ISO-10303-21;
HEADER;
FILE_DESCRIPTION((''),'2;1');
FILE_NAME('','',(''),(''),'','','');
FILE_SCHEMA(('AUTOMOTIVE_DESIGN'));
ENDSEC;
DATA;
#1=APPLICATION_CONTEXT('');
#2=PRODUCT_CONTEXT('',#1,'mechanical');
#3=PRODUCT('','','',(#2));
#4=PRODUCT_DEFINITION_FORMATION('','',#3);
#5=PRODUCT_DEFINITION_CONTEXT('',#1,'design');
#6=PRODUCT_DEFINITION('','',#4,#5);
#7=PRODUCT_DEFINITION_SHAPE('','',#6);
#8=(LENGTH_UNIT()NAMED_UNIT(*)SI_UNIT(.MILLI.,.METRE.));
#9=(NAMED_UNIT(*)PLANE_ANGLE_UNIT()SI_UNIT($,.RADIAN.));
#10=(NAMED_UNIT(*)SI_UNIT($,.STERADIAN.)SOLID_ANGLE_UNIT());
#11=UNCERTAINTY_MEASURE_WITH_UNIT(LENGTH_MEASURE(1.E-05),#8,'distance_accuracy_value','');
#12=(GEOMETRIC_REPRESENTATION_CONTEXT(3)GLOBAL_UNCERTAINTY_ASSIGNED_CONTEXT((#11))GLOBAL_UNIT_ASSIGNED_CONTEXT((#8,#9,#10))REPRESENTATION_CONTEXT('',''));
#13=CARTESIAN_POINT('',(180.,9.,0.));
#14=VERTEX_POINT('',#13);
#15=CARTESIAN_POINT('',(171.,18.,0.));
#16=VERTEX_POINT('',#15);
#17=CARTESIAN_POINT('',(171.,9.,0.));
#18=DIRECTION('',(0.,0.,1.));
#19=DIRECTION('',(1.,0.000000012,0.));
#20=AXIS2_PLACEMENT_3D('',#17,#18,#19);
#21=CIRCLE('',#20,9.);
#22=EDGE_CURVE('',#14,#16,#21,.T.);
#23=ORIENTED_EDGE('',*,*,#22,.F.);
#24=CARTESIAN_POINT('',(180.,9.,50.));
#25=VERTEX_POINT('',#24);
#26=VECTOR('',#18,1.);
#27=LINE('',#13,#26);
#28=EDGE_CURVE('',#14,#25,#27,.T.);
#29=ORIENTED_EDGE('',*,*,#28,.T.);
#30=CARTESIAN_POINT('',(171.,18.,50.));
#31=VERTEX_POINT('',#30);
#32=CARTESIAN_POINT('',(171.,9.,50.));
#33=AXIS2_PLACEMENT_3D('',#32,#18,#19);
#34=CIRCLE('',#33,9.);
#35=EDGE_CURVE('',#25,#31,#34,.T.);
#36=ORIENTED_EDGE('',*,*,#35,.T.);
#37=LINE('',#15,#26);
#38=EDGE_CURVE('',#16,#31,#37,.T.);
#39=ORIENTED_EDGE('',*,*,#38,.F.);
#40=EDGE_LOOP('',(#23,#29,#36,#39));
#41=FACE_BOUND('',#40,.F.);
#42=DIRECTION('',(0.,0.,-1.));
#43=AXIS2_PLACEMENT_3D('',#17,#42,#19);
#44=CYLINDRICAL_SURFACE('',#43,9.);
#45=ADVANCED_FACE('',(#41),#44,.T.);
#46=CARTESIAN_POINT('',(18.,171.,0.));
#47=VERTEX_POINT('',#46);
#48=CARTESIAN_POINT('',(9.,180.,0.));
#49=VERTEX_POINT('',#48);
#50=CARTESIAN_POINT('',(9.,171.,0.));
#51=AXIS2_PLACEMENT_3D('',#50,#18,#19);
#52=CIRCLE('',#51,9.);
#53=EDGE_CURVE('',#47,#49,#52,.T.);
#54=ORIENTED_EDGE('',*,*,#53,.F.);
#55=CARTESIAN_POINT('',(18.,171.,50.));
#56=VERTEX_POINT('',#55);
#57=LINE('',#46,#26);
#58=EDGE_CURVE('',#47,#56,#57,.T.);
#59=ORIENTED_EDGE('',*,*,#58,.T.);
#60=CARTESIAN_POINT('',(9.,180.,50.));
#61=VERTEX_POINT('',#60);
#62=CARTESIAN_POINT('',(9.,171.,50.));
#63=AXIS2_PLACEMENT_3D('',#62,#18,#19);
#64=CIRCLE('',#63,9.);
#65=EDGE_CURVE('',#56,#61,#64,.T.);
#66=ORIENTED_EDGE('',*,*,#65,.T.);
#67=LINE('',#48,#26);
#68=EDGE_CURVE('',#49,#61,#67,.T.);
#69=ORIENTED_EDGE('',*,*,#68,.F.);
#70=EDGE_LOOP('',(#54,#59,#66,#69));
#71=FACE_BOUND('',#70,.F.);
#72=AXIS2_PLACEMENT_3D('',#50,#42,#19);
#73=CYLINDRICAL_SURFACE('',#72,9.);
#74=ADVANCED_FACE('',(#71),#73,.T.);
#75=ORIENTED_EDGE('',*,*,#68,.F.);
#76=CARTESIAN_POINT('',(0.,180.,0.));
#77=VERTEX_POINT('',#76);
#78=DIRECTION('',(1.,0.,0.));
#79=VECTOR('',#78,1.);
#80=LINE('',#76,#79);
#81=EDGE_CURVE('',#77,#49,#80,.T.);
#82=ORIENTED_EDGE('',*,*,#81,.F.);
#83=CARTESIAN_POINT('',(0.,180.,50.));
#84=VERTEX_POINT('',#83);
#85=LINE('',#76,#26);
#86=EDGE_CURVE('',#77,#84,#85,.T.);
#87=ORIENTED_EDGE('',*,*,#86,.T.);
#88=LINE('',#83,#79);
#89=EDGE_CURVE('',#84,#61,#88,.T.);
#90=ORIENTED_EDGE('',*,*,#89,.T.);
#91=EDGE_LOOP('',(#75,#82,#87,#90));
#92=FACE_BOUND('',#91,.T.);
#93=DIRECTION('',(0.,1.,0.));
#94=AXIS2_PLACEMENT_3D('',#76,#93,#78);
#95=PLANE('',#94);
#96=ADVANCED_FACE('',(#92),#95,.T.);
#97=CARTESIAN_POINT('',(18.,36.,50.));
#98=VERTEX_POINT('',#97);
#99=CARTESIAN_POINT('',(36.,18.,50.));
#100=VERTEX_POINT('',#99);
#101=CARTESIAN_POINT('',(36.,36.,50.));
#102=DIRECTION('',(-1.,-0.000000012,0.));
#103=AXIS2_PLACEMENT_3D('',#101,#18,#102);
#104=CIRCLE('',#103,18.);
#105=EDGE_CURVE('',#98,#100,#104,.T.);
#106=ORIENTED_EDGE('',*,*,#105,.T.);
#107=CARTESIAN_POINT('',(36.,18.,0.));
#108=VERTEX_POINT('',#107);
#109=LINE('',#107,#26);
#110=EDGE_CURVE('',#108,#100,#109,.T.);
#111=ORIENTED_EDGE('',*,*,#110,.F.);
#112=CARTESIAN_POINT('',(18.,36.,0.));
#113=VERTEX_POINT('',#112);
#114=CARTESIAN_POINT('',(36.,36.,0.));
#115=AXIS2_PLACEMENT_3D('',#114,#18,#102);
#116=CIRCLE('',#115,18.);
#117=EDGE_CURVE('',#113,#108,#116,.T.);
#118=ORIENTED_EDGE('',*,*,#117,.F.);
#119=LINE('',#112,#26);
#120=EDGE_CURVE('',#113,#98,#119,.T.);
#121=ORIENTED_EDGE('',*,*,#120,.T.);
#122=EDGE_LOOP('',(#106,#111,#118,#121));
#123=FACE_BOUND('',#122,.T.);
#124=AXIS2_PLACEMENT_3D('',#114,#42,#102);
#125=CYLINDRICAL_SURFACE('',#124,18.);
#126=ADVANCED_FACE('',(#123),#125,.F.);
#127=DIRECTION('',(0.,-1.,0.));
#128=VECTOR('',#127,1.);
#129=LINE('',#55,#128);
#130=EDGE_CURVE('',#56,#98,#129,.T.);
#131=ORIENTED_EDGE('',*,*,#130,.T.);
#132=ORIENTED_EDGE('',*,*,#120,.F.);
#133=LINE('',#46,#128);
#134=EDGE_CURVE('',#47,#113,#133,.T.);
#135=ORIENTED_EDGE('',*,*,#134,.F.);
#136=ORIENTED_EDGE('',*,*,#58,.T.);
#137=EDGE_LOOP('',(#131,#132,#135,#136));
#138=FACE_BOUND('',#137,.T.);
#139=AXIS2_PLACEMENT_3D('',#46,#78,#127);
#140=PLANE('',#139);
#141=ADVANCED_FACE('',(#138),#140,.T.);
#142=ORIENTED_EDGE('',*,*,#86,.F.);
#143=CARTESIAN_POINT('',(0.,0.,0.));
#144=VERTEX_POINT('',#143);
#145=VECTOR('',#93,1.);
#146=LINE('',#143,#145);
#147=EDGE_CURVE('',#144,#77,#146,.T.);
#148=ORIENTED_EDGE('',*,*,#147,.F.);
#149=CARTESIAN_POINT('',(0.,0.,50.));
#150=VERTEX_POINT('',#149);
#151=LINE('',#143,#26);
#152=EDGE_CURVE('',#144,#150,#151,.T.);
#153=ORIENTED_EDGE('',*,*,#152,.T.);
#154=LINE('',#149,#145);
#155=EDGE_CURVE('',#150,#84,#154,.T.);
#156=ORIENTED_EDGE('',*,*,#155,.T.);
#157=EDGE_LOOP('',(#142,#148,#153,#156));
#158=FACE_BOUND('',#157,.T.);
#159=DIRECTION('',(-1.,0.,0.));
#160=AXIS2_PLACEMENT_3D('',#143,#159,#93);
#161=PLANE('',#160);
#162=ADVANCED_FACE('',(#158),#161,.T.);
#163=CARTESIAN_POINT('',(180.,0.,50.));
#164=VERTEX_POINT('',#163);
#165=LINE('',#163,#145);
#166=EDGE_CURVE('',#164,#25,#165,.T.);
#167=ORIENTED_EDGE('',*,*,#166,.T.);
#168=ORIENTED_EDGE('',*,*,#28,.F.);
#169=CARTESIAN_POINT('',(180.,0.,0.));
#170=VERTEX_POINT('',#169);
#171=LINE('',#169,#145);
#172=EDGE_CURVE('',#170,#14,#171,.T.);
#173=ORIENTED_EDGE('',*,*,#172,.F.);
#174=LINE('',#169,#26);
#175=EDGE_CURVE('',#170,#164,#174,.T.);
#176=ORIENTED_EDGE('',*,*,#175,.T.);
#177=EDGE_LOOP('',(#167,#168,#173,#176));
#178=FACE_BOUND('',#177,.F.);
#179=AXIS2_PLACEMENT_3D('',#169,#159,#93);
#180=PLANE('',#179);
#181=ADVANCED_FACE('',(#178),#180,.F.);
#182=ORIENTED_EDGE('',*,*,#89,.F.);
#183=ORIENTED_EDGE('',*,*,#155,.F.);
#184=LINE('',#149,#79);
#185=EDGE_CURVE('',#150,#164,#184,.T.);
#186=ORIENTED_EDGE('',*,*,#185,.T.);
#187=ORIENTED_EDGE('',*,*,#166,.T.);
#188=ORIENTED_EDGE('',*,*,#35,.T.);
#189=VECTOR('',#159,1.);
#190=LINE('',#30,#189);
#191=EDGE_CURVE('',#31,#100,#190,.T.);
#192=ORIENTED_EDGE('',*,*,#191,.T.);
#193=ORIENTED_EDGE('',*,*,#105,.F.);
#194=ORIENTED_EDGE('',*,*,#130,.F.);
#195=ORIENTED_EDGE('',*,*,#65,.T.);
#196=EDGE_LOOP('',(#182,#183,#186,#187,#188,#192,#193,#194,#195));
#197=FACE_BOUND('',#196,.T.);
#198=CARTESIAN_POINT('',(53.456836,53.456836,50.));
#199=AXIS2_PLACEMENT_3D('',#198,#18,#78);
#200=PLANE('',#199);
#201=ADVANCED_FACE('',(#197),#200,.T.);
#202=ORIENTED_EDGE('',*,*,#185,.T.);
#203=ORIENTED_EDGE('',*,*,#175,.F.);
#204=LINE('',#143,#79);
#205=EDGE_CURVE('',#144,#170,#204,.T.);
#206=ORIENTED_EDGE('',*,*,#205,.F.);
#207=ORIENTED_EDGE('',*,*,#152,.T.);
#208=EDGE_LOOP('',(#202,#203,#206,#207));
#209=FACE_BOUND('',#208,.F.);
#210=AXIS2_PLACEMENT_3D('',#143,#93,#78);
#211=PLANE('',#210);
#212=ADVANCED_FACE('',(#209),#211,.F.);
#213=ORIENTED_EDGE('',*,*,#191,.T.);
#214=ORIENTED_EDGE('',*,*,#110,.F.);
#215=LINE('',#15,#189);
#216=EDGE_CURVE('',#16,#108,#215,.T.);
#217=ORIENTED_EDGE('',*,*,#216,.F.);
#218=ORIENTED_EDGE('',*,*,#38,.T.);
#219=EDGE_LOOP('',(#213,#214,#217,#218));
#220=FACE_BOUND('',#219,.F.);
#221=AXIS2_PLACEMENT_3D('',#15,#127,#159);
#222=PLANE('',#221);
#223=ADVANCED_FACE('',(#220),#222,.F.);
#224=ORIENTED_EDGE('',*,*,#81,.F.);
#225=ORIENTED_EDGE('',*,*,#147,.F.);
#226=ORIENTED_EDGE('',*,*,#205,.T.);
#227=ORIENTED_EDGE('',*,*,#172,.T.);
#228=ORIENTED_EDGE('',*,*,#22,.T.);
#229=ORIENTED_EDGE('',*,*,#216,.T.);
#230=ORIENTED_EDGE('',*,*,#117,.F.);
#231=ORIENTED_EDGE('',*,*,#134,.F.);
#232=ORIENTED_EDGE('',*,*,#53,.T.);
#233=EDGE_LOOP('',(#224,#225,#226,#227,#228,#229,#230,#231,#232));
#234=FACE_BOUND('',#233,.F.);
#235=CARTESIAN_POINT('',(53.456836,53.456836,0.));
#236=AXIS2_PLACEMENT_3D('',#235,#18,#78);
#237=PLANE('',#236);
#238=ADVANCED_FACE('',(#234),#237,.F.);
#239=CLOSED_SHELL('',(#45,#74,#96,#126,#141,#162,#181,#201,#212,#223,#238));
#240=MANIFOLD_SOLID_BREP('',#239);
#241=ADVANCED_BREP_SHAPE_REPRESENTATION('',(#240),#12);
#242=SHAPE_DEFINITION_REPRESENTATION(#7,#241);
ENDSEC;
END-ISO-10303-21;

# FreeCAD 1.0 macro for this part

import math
import FreeCAD as App
import Part
import Sketcher
Q = App.Units.Quantity

doc = App.newDocument("Part")
params = doc.addObject("Spreadsheet::Sheet", "Params")
for row, (alias, value) in enumerate([
    ("sketch1_radius", "9 mm"),
    ("sketch1_radius2", "18 mm"),
    ("sketch1_width", "180 mm"),
    ("sketch1_width2", "135 mm"),
    ("pad1_length", "50 mm"),
], start=1):
    params.set(f"A{row}", alias)
    params.set(f"B{row}", "=" + value)
    params.setAlias(f"B{row}", alias)

body = doc.addObject("PartDesign::Body", "Body")

# Sketch on XY plane
sketch1 = body.newObject("Sketcher::SketchObject", "Sketch")
sketch1.AttachmentSupport = (doc.getObject("XY_Plane"), [""])
sketch1.MapMode = "FlatFace"
sketch1.addGeometry([
    Part.LineSegment(App.Vector(0, 0, 0), App.Vector(180, 0, 0)),  # 0
    Part.LineSegment(App.Vector(180, 0, 0), App.Vector(180, 9, 0)),  # 1
    Part.ArcOfCircle(Part.Circle(App.Vector(171, 9, 0), App.Vector(0, 0, 1), 9), math.radians(0.000001), math.radians(89.999999)),  # 2
    Part.LineSegment(App.Vector(171, 18, 0), App.Vector(36, 18, 0)),  # 3
    Part.ArcOfCircle(Part.Circle(App.Vector(36, 36, 0), App.Vector(0, 0, 1), 18), math.radians(-179.999999), math.radians(-90.000001)),  # 4
    Part.LineSegment(App.Vector(18, 36, 0), App.Vector(18, 171, 0)),  # 5
    Part.ArcOfCircle(Part.Circle(App.Vector(9, 171, 0), App.Vector(0, 0, 1), 9), math.radians(0.000001), math.radians(89.999999)),  # 6
    Part.LineSegment(App.Vector(9, 180, 0), App.Vector(0, 180, 0)),  # 7
    Part.LineSegment(App.Vector(0, 180, 0), App.Vector(0, 0, 0)),  # 8
], False)
sketch1.addConstraint([
    Sketcher.Constraint("Coincident", 0, 2, 1, 1),
    Sketcher.Constraint("Tangent", 1, 2, 2, 1),
    Sketcher.Constraint("Tangent", 2, 2, 3, 1),
    Sketcher.Constraint("Tangent", 3, 2, 4, 2),
    Sketcher.Constraint("Tangent", 4, 1, 5, 1),
    Sketcher.Constraint("Tangent", 5, 2, 6, 1),
    Sketcher.Constraint("Tangent", 6, 2, 7, 1),
    Sketcher.Constraint("Coincident", 7, 2, 8, 1),
    Sketcher.Constraint("Coincident", 8, 2, 0, 1),
    Sketcher.Constraint("Horizontal", 0),
    Sketcher.Constraint("Vertical", 1),
    Sketcher.Constraint("Horizontal", 3),
    Sketcher.Constraint("Vertical", 5),
    Sketcher.Constraint("Horizontal", 7),
    Sketcher.Constraint("Vertical", 8),
    Sketcher.Constraint("Coincident", 8, 2, -1, 1),
    Sketcher.Constraint("Equal", 2, 6),
    Sketcher.Constraint("Equal", 7, 1),
    Sketcher.Constraint("Equal", 3, 5),
    Sketcher.Constraint("Radius", 2, Q("9 mm")),
    Sketcher.Constraint("Radius", 4, Q("18 mm")),
    Sketcher.Constraint("DistanceX", 0, 1, 0, 2, Q("180 mm")),
    Sketcher.Constraint("DistanceX", 3, 2, 3, 1, Q("135 mm")),
])
sketch1.setExpression("Constraints[19]", "Params.sketch1_radius")
sketch1.setExpression("Constraints[20]", "Params.sketch1_radius2")
sketch1.setExpression("Constraints[21]", "Params.sketch1_width")
sketch1.setExpression("Constraints[22]", "Params.sketch1_width2")
pad1 = body.newObject("PartDesign::Pad", "Pad")
pad1.Profile = sketch1
pad1.setExpression("Length", "Params.pad1_length")

doc.recompute()
